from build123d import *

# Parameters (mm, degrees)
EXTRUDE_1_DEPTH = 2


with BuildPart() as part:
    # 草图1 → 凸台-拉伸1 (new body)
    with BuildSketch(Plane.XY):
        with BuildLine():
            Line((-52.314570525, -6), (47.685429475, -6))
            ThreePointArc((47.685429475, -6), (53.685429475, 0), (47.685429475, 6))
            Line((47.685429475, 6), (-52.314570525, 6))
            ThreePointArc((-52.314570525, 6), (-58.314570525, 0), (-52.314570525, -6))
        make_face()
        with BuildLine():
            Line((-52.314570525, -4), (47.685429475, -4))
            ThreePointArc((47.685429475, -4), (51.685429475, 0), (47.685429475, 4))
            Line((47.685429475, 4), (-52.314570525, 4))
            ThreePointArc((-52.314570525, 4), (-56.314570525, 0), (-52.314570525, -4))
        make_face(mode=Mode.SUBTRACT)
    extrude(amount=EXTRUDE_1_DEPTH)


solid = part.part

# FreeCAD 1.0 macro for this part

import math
import FreeCAD as App
import Part
import Sketcher
Q = App.Units.Quantity

doc = App.newDocument("Part")
body = doc.addObject("PartDesign::Body", "Body")

# Sketch on XY plane
sketch1 = body.newObject("Sketcher::SketchObject", "Sketch")
sketch1.AttachmentSupport = (doc.getObject("XY_Plane"), [""])
sketch1.MapMode = "FlatFace"
sketch1.addGeometry(Part.LineSegment(App.Vector(-52.3, -6, 0), App.Vector(47.7, -6, 0)), False)
sketch1.addGeometry(Part.ArcOfCircle(Part.Circle(App.Vector(47.7, 0, 0), App.Vector(0, 0, 1), 6), math.radians(-90), math.radians(90)), False)
sketch1.addGeometry(Part.LineSegment(App.Vector(47.7, 6, 0), App.Vector(-52.3, 6, 0)), False)
sketch1.addGeometry(Part.ArcOfCircle(Part.Circle(App.Vector(-52.3, 0, 0), App.Vector(0, 0, 1), 6), math.radians(90), math.radians(270)), False)
sketch1.addGeometry(Part.LineSegment(App.Vector(47.7, -4, 0), App.Vector(-52.3, -4, 0)), False)
sketch1.addGeometry(Part.ArcOfCircle(Part.Circle(App.Vector(-52.3, 0, 0), App.Vector(0, 0, 1), 4), math.radians(90), math.radians(270)), False)
sketch1.addGeometry(Part.LineSegment(App.Vector(-52.3, 4, 0), App.Vector(47.7, 4, 0)), False)
sketch1.addGeometry(Part.ArcOfCircle(Part.Circle(App.Vector(47.7, 0, 0), App.Vector(0, 0, 1), 4), math.radians(-90), math.radians(90)), False)
sketch1.addConstraint(Sketcher.Constraint("Tangent", 0, 2, 1, 1))
sketch1.addConstraint(Sketcher.Constraint("Tangent", 1, 2, 2, 1))
sketch1.addConstraint(Sketcher.Constraint("Tangent", 2, 2, 3, 1))
sketch1.addConstraint(Sketcher.Constraint("Tangent", 3, 2, 0, 1))
sketch1.addConstraint(Sketcher.Constraint("Tangent", 4, 2, 5, 2))
sketch1.addConstraint(Sketcher.Constraint("Tangent", 5, 1, 6, 1))
sketch1.addConstraint(Sketcher.Constraint("Tangent", 6, 2, 7, 2))
sketch1.addConstraint(Sketcher.Constraint("Tangent", 7, 1, 4, 1))
sketch1.addConstraint(Sketcher.Constraint("Horizontal", 0))
sketch1.addConstraint(Sketcher.Constraint("Horizontal", 2))
sketch1.addConstraint(Sketcher.Constraint("Horizontal", 4))
sketch1.addConstraint(Sketcher.Constraint("Horizontal", 6))
sketch1.addConstraint(Sketcher.Constraint("Coincident", 5, 3, 3, 3))
sketch1.addConstraint(Sketcher.Constraint("PointOnObject", 1, 3, -1))
sketch1.addConstraint(Sketcher.Constraint("Vertical", 7, 3, 0, 2))
sketch1.addConstraint(Sketcher.Constraint("Radius", 1, Q("6 mm")))
sketch1.addConstraint(Sketcher.Constraint("Radius", 5, Q("4 mm")))
sketch1.addConstraint(Sketcher.Constraint("DistanceX", 0, 1, 0, 2, Q("100 mm")))
sketch1.addConstraint(Sketcher.Constraint("DistanceX", -1, 1, 1, 3, Q("47.685429 mm")))
pad1 = body.newObject("PartDesign::Pad", "Pad")
pad1.Profile = sketch1
pad1.Length = 2

doc.recompute()
